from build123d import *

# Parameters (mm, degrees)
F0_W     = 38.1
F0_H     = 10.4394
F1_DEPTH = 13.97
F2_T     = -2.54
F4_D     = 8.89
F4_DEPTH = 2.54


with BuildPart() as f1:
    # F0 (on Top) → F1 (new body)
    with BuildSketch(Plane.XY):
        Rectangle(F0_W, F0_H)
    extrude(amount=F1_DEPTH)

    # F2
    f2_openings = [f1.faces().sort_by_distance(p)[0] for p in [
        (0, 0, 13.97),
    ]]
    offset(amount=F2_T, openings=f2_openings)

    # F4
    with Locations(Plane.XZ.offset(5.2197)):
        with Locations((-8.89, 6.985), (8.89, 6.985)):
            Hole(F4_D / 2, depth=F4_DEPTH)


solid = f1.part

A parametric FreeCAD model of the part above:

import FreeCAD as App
import Part
import Sketcher
Q = App.Units.Quantity


def faces_at(feature, points):
    """Names of the faces that lie closest to the given points."""
    faces = feature.Shape.Faces
    near = lambda p: min(range(len(faces)), key=lambda i: faces[i].distToShape(Part.Vertex(*p))[0])
    return sorted({f"Face{near(p) + 1}" for p in points})


def add_polygon(sketch, points):
    """Adds a closed chain of lines whose ends are joined by coincident constraints."""
    first, n = sketch.GeometryCount, len(points)
    for a, b in zip(points, points[1:] + points[:1]):
        sketch.addGeometry(Part.LineSegment(App.Vector(*a, 0), App.Vector(*b, 0)), False)
    for i in range(n):
        sketch.addConstraint(Sketcher.Constraint("Coincident", first + i, 2, first + (i + 1) % n, 1))

doc = App.newDocument("Part")
body = doc.addObject("PartDesign::Body", "Body")

# Sketch on XY plane
sketch1 = body.newObject("Sketcher::SketchObject", "Sketch")
sketch1.AttachmentSupport = (doc.getObject("XY_Plane"), [""])
sketch1.MapMode = "FlatFace"
add_polygon(sketch1, [(-19.05, 5.2197), (-19.05, -5.2197), (19.05, -5.2197), (19.05, 5.2197)])  # lines 0-3
sketch1.addConstraint([
    Sketcher.Constraint("Vertical", 0),
    Sketcher.Constraint("Horizontal", 1),
    Sketcher.Constraint("Vertical", 2),
    Sketcher.Constraint("Horizontal", 3),
    Sketcher.Constraint("Symmetric", 0, 2, 2, 2, -1, 1),
    Sketcher.Constraint("DistanceX", 1, 1, 1, 2, Q("1.5 in")),
    Sketcher.Constraint("DistanceY", 0, 2, 0, 1, Q("0.411 in")),
])
pad1 = body.newObject("PartDesign::Pad", "Pad")
pad1.Profile = sketch1
pad1.Length = Q("0.55 in")
doc.recompute()

thickness = body.newObject("PartDesign::Thickness", "Thickness")
thickness.Base = (pad1, faces_at(pad1, [(0, 0, 13.97)]))
thickness.Value = Q("0.1 in")
thickness.Reversed = True
thickness.Join = "Arc"

# Sketch on XZ plane
sketch2 = body.newObject("Sketcher::SketchObject", "Sketch001")
sketch2.AttachmentSupport = (doc.getObject("XZ_Plane"), [""])
sketch2.MapMode = "FlatFace"
sketch2.AttachmentOffset = App.Placement(App.Vector(0, 0, 0.2055 * 25.4), App.Rotation())
sketch2.addGeometry([
    Part.Circle(App.Vector(-8.89, 6.985, 0), App.Vector(0, 0, 1), 4.445),
    Part.Circle(App.Vector(8.89, 6.985, 0), App.Vector(0, 0, 1), 4.445),
], False)
sketch2.addConstraint([
    Sketcher.Constraint("Equal", 0, 1),
    Sketcher.Constraint("Symmetric", 0, 3, 1, 3, -2),
    Sketcher.Constraint("Diameter", 0, Q("0.35 in")),
    Sketcher.Constraint("DistanceX", 0, 3, 1, 3, Q("0.7 in")),
    Sketcher.Constraint("DistanceY", -1, 1, 0, 3, Q("0.275 in")),
])
doc.recompute()
hole = body.newObject("PartDesign::Hole", "Hole")
hole.Profile = sketch2
hole.ThreadType = "None"
hole.Diameter = Q("0.35 in")
hole.DepthType = "Dimension"
hole.Depth = Q("0.1 in")
hole.DrillPoint = "Flat"

doc.recompute()
